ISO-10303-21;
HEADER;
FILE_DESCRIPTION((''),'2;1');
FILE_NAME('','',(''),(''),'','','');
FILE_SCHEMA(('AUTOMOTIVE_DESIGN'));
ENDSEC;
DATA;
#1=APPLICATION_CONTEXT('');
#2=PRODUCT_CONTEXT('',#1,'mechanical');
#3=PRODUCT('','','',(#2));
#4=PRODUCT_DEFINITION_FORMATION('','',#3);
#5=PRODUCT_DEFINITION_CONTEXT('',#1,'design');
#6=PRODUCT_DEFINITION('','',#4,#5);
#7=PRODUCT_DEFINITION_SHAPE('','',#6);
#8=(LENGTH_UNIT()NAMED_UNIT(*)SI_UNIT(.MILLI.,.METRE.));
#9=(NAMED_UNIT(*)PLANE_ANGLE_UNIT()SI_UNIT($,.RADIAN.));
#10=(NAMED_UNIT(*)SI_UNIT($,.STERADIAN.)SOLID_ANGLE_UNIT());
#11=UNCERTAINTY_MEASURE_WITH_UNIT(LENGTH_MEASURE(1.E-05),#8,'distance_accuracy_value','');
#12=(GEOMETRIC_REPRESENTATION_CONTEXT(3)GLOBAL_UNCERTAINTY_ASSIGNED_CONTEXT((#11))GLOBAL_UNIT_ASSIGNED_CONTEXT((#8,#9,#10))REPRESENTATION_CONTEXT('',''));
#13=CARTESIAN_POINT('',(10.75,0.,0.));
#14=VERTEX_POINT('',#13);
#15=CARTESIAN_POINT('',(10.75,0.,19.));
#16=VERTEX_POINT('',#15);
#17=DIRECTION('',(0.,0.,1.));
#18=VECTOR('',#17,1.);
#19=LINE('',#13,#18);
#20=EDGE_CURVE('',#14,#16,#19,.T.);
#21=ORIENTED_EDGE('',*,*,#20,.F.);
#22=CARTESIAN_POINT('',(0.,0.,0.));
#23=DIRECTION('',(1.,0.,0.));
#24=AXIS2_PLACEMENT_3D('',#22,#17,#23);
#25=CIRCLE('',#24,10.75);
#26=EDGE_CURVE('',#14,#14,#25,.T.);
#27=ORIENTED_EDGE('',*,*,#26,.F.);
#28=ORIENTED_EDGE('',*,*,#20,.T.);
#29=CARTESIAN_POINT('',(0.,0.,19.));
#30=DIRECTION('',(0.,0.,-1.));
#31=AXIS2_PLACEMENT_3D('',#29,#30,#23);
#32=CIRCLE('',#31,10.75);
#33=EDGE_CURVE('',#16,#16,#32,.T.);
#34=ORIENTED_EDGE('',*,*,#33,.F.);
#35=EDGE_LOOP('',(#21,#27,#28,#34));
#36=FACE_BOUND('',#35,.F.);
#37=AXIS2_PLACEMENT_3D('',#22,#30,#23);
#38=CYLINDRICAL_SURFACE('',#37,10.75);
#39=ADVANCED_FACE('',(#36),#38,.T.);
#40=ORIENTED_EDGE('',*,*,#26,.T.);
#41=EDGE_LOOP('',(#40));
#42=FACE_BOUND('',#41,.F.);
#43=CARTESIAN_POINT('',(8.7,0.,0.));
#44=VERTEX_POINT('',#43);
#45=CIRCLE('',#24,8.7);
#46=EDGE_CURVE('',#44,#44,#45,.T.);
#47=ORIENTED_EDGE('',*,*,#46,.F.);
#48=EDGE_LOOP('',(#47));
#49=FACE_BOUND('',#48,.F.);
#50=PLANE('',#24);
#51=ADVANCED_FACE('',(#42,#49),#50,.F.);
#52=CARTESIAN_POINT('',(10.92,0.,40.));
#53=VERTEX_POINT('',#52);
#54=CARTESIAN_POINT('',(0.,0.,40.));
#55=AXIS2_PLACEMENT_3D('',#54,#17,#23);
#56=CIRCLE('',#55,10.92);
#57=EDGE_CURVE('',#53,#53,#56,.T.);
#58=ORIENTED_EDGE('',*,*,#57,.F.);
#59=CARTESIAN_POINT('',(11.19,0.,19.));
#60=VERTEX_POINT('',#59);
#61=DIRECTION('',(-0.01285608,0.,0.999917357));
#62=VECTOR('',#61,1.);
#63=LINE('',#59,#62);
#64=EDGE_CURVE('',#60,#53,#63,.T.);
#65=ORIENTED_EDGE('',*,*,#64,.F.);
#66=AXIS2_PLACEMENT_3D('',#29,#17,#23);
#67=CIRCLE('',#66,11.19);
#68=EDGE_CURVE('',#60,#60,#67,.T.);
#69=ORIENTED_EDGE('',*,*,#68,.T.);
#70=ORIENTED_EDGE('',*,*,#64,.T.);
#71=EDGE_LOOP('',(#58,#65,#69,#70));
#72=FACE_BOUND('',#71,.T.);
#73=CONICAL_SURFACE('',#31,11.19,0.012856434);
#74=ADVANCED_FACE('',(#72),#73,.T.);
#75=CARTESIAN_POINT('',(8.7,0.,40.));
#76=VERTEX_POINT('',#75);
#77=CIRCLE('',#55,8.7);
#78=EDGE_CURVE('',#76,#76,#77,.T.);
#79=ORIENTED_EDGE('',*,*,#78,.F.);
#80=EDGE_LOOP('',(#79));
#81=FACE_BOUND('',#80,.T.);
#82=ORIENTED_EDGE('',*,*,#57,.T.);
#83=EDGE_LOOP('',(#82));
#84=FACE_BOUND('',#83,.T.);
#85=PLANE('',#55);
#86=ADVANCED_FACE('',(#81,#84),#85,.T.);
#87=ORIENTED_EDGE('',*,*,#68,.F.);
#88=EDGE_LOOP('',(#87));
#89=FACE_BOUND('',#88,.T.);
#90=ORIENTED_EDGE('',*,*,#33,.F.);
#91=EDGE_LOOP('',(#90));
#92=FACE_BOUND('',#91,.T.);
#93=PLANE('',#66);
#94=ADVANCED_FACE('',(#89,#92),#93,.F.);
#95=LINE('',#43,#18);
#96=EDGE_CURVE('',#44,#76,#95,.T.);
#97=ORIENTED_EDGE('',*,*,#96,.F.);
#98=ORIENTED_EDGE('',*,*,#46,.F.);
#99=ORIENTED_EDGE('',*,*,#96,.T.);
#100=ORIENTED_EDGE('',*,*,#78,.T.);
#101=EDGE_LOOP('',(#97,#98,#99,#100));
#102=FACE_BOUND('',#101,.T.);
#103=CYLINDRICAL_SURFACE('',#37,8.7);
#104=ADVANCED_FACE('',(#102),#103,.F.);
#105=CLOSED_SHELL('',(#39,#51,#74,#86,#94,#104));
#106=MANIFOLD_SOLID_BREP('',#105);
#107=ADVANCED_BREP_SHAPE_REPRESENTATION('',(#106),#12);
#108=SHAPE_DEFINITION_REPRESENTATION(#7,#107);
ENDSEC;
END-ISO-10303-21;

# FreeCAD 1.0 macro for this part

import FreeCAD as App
import Part
import Sketcher
Q = App.Units.Quantity


def add_polygon(sketch, points):
    """Adds a closed chain of lines whose ends are joined by coincident constraints."""
    first, n = sketch.GeometryCount, len(points)
    for a, b in zip(points, points[1:] + points[:1]):
        sketch.addGeometry(Part.LineSegment(App.Vector(*a, 0), App.Vector(*b, 0)), False)
    for i in range(n):
        sketch.addConstraint(Sketcher.Constraint("Coincident", first + i, 2, first + (i + 1) % n, 1))

doc = App.newDocument("Part")
body = doc.addObject("PartDesign::Body", "Body")

# Sketch on XY plane
sketch1 = body.newObject("Sketcher::SketchObject", "Sketch")
sketch1.AttachmentSupport = (doc.getObject("XY_Plane"), [""])
sketch1.MapMode = "FlatFace"
sketch1.addGeometry(Part.Circle(App.Vector(0, 0, 0), App.Vector(0, 0, 1), 9), False)
sketch1.addConstraint([
    Sketcher.Constraint("Coincident", 0, 3, -1, 1),
    Sketcher.Constraint("Diameter", 0, Q("17.4 mm")),
])
pad1 = body.newObject("PartDesign::Pad", "Pad")
pad1.Profile = sketch1
pad1.Length = 40
body2 = doc.addObject("PartDesign::Body", "Body001")

# Sketch on XY plane
sketch2 = body2.newObject("Sketcher::SketchObject", "Sketch001")
sketch2.AttachmentSupport = (doc.getObject("XY_Plane001"), [""])
sketch2.MapMode = "FlatFace"
sketch2.addGeometry(Part.Circle(App.Vector(0, 0, 0), App.Vector(0, 0, 1), 11), False)
sketch2.addConstraint([
    Sketcher.Constraint("Coincident", 0, 3, -1, 1),
    Sketcher.Constraint("Diameter", 0, Q("21.5 mm")),
])
pad2 = body2.newObject("PartDesign::Pad", "Pad001")
pad2.Profile = sketch2
pad2.Length = 40
body3 = doc.addObject("PartDesign::Body", "Body002")

# Sketch on XZ plane
sketch3 = body3.newObject("Sketcher::SketchObject", "Sketch002")
sketch3.AttachmentSupport = (doc.getObject("XZ_Plane002"), [""])
sketch3.MapMode = "FlatFace"
add_polygon(sketch3, [(0, 19), (11, 19), (11, 40), (0, 40)])  # lines 0-3
sketch3.addConstraint([
    Sketcher.Constraint("Horizontal", 0),
    Sketcher.Constraint("Horizontal", 2),
    Sketcher.Constraint("Vertical", 3),
    Sketcher.Constraint("PointOnObject", 2, 2, -2),
    Sketcher.Constraint("DistanceY", 3, 2, 3, 1, Q("21 mm")),
    Sketcher.Constraint("DistanceY", -1, 1, 0, 2, Q("19 mm")),
    Sketcher.Constraint("DistanceX", 0, 1, 0, 2, Q("11.19 mm")),
    Sketcher.Constraint("DistanceX", 2, 2, 2, 1, Q("10.92 mm")),
])
revolution = body3.newObject("PartDesign::Revolution", "Revolution")
revolution.Profile = sketch3
revolution.ReferenceAxis = (sketch3, ["V_Axis"])
revolution.Angle = 360
doc.recompute()

boolean = body3.newObject("PartDesign::Boolean", "Boolean")
boolean.Type = "Fuse"
boolean.addObjects([body2])
doc.recompute()

boolean2 = body3.newObject("PartDesign::Boolean", "Boolean001")
boolean2.Type = "Cut"
boolean2.addObjects([body])

doc.recompute()
